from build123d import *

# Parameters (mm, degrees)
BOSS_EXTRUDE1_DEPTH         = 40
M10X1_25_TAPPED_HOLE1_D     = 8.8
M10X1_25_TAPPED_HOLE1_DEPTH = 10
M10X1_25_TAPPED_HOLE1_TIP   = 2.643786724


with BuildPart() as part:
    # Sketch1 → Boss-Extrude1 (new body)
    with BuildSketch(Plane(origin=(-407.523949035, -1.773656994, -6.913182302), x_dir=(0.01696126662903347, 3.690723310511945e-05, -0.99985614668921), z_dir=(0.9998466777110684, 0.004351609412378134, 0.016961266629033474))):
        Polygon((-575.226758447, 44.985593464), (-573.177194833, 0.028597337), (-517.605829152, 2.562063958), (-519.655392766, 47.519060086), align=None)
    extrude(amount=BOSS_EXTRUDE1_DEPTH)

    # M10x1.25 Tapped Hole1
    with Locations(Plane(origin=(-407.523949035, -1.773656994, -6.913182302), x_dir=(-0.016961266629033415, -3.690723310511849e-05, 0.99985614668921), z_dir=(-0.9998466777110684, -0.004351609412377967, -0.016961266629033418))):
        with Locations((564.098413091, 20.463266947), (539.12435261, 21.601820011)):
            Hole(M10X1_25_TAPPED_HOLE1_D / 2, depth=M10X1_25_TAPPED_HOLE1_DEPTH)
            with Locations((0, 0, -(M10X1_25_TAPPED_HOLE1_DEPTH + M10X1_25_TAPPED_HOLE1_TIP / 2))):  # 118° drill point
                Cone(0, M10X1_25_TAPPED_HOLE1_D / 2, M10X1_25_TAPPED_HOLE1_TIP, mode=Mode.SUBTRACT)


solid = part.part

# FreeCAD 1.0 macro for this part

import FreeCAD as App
import Part
import Sketcher

V = App.Vector


def add_polygon(sketch, points):
    """Adds a closed chain of lines whose ends are joined by coincident constraints."""
    first, n = sketch.GeometryCount, len(points)
    for a, b in zip(points, points[1:] + points[:1]):
        sketch.addGeometry(Part.LineSegment(App.Vector(*a, 0), App.Vector(*b, 0)), False)
    for i in range(n):
        sketch.addConstraint(Sketcher.Constraint("Coincident", first + i, 2, first + (i + 1) % n, 1))

doc = App.newDocument("Part")
body = doc.addObject("PartDesign::Body", "Body")

# Sketch on an angled plane
sketch1 = body.newObject("Sketcher::SketchObject", "Sketch")
sketch1.Placement = App.Placement(V(-407.523949, -1.773657, -6.913182), App.Rotation(V(0.016961267, 0.000036907, -0.999856147), V(-0.004351609, 0.999990532, -0.000036907), V(0.999846678, 0.004351609, 0.016961267), "ZXY"))
add_polygon(sketch1, [(-575, 45), (-573, 0), (-518, 3), (-520, 48)])  # lines 0-3
sketch1.addConstraint(Sketcher.Constraint("Perpendicular", 0, 1))
sketch1.addConstraint(Sketcher.Constraint("Perpendicular", 1, 2))
sketch1.addConstraint(Sketcher.Constraint("Perpendicular", 2, 3))
sketch1.addConstraint(Sketcher.Constraint("Distance", 0, 45.003691))
sketch1.addConstraint(Sketcher.Constraint("DistanceX", 1, 2, -1, 1, 517.605829))
sketch1.addConstraint(Sketcher.Constraint("DistanceY", -1, 1, 2, 2, 47.51906))
sketch1.addConstraint(Sketcher.Constraint("DistanceX", 3, 2, -1, 1, 575.226759))
sketch1.addConstraint(Sketcher.Constraint("DistanceY", 1, 2, 3, 2, 42.42353))
pad1 = body.newObject("PartDesign::Pad", "Pad")
pad1.Profile = sketch1
pad1.Length = 40

# Sketch on an angled plane
sketch2 = body.newObject("Sketcher::SketchObject", "Sketch001")
sketch2.Placement = App.Placement(V(-407.523949, -1.773657, -6.913182), App.Rotation(V(-0.016961267, -0.000036907, 0.999856147), V(-0.004351609, 0.999990532, -0.000036907), V(-0.999846678, -0.004351609, -0.016961267), "ZXY"))
sketch2.addGeometry(Part.Circle(V(564.1, 20.5, 0), V(0, 0, 1), 4.4), False)
sketch2.addGeometry(Part.Circle(V(539.1, 21.6, 0), V(0, 0, 1), 4.4), False)
sketch2.addConstraint(Sketcher.Constraint("Equal", 0, 1))
sketch2.addConstraint(Sketcher.Constraint("Diameter", 0, 8.8))
sketch2.addConstraint(Sketcher.Constraint("DistanceY", -1, 1, 1, 3, 21.60182))
sketch2.addConstraint(Sketcher.Constraint("DistanceX", 1, 3, 0, 3, 24.97406))
sketch2.addConstraint(Sketcher.Constraint("DistanceX", -1, 1, 0, 3, 564.098413))
sketch2.addConstraint(Sketcher.Constraint("DistanceY", -1, 1, 0, 3, 20.463267))
doc.recompute()
hole = body.newObject("PartDesign::Hole", "Hole")
hole.Profile = sketch2
hole.ThreadType = "None"
hole.Diameter = 8.8
hole.DepthType = "Dimension"
hole.Depth = 10
hole.DrillPoint = "Angled"
hole.DrillPointAngle = 118

doc.recompute()
